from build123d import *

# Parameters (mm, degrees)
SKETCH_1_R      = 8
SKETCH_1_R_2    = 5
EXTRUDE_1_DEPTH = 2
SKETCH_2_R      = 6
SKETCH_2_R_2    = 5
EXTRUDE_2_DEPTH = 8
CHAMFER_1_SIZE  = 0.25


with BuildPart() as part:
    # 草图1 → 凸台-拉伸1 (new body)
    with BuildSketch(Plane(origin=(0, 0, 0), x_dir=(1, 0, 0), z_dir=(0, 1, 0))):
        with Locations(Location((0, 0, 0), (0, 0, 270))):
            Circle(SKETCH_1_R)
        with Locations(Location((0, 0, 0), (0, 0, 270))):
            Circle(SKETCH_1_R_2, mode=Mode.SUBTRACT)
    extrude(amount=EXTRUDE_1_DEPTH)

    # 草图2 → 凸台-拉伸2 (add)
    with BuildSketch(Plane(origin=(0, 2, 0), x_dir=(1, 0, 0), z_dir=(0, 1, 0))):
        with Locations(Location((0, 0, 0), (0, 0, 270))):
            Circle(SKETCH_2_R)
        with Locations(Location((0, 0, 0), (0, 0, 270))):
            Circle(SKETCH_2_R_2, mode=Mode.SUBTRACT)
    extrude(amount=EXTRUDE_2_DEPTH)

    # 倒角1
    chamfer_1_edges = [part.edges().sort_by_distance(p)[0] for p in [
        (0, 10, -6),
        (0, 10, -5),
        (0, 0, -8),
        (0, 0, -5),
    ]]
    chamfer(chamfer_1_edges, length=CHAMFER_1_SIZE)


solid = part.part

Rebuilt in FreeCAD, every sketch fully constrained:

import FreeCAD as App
import Part
import Sketcher

V = App.Vector
Q = App.Units.Quantity


def edges_at(feature, points):
    """Names of the edges that pass closest to the given points."""
    edges = feature.Shape.Edges
    near = lambda p: min(range(len(edges)), key=lambda i: edges[i].distToShape(Part.Vertex(*p))[0])
    return sorted({f"Edge{near(p) + 1}" for p in points})

doc = App.newDocument("Part")
body = doc.addObject("PartDesign::Body", "Body")

# Sketch on XZ plane
sketch1 = body.newObject("Sketcher::SketchObject", "Sketch")
sketch1.AttachmentSupport = (doc.getObject("XZ_Plane"), [""])
sketch1.MapMode = "FlatFace"
sketch1.addGeometry(Part.Circle(V(0, 0, 0), V(0, 0, 1), 8), False)
sketch1.addGeometry(Part.Circle(V(0, 0, 0), V(0, 0, 1), 5), False)
sketch1.addConstraint(Sketcher.Constraint("Coincident", 0, 3, -1, 1))
sketch1.addConstraint(Sketcher.Constraint("Coincident", 1, 3, -1, 1))
sketch1.addConstraint(Sketcher.Constraint("Diameter", 0, Q("16 mm")))
sketch1.addConstraint(Sketcher.Constraint("Diameter", 1, Q("10 mm")))
pad1 = body.newObject("PartDesign::Pad", "Pad")
pad1.Profile = sketch1
pad1.Length = 2
pad1.Reversed = True

# Sketch on XZ plane
sketch2 = body.newObject("Sketcher::SketchObject", "Sketch001")
sketch2.AttachmentSupport = (doc.getObject("XZ_Plane"), [""])
sketch2.MapMode = "FlatFace"
sketch2.AttachmentOffset = App.Placement(V(0, 0, -2), App.Rotation())
sketch2.addGeometry(Part.Circle(V(0, 0, 0), V(0, 0, 1), 6), False)
sketch2.addGeometry(Part.Circle(V(0, 0, 0), V(0, 0, 1), 5), False)
sketch2.addConstraint(Sketcher.Constraint("Coincident", 0, 3, -1, 1))
sketch2.addConstraint(Sketcher.Constraint("Coincident", 1, 3, -1, 1))
sketch2.addConstraint(Sketcher.Constraint("Diameter", 0, Q("12 mm")))
sketch2.addConstraint(Sketcher.Constraint("Diameter", 1, Q("10 mm")))
pad2 = body.newObject("PartDesign::Pad", "Pad001")
pad2.Profile = sketch2
pad2.Length = 8
pad2.Reversed = True
doc.recompute()

chamfer = body.newObject("PartDesign::Chamfer", "Chamfer")
chamfer.Base = (pad2, edges_at(pad2, [
    (0, 10, -6),
    (0, 10, -5),
    (0, 0, -8),
    (0, 0, -5),
]))
chamfer.Size = 0.25

doc.recompute()
